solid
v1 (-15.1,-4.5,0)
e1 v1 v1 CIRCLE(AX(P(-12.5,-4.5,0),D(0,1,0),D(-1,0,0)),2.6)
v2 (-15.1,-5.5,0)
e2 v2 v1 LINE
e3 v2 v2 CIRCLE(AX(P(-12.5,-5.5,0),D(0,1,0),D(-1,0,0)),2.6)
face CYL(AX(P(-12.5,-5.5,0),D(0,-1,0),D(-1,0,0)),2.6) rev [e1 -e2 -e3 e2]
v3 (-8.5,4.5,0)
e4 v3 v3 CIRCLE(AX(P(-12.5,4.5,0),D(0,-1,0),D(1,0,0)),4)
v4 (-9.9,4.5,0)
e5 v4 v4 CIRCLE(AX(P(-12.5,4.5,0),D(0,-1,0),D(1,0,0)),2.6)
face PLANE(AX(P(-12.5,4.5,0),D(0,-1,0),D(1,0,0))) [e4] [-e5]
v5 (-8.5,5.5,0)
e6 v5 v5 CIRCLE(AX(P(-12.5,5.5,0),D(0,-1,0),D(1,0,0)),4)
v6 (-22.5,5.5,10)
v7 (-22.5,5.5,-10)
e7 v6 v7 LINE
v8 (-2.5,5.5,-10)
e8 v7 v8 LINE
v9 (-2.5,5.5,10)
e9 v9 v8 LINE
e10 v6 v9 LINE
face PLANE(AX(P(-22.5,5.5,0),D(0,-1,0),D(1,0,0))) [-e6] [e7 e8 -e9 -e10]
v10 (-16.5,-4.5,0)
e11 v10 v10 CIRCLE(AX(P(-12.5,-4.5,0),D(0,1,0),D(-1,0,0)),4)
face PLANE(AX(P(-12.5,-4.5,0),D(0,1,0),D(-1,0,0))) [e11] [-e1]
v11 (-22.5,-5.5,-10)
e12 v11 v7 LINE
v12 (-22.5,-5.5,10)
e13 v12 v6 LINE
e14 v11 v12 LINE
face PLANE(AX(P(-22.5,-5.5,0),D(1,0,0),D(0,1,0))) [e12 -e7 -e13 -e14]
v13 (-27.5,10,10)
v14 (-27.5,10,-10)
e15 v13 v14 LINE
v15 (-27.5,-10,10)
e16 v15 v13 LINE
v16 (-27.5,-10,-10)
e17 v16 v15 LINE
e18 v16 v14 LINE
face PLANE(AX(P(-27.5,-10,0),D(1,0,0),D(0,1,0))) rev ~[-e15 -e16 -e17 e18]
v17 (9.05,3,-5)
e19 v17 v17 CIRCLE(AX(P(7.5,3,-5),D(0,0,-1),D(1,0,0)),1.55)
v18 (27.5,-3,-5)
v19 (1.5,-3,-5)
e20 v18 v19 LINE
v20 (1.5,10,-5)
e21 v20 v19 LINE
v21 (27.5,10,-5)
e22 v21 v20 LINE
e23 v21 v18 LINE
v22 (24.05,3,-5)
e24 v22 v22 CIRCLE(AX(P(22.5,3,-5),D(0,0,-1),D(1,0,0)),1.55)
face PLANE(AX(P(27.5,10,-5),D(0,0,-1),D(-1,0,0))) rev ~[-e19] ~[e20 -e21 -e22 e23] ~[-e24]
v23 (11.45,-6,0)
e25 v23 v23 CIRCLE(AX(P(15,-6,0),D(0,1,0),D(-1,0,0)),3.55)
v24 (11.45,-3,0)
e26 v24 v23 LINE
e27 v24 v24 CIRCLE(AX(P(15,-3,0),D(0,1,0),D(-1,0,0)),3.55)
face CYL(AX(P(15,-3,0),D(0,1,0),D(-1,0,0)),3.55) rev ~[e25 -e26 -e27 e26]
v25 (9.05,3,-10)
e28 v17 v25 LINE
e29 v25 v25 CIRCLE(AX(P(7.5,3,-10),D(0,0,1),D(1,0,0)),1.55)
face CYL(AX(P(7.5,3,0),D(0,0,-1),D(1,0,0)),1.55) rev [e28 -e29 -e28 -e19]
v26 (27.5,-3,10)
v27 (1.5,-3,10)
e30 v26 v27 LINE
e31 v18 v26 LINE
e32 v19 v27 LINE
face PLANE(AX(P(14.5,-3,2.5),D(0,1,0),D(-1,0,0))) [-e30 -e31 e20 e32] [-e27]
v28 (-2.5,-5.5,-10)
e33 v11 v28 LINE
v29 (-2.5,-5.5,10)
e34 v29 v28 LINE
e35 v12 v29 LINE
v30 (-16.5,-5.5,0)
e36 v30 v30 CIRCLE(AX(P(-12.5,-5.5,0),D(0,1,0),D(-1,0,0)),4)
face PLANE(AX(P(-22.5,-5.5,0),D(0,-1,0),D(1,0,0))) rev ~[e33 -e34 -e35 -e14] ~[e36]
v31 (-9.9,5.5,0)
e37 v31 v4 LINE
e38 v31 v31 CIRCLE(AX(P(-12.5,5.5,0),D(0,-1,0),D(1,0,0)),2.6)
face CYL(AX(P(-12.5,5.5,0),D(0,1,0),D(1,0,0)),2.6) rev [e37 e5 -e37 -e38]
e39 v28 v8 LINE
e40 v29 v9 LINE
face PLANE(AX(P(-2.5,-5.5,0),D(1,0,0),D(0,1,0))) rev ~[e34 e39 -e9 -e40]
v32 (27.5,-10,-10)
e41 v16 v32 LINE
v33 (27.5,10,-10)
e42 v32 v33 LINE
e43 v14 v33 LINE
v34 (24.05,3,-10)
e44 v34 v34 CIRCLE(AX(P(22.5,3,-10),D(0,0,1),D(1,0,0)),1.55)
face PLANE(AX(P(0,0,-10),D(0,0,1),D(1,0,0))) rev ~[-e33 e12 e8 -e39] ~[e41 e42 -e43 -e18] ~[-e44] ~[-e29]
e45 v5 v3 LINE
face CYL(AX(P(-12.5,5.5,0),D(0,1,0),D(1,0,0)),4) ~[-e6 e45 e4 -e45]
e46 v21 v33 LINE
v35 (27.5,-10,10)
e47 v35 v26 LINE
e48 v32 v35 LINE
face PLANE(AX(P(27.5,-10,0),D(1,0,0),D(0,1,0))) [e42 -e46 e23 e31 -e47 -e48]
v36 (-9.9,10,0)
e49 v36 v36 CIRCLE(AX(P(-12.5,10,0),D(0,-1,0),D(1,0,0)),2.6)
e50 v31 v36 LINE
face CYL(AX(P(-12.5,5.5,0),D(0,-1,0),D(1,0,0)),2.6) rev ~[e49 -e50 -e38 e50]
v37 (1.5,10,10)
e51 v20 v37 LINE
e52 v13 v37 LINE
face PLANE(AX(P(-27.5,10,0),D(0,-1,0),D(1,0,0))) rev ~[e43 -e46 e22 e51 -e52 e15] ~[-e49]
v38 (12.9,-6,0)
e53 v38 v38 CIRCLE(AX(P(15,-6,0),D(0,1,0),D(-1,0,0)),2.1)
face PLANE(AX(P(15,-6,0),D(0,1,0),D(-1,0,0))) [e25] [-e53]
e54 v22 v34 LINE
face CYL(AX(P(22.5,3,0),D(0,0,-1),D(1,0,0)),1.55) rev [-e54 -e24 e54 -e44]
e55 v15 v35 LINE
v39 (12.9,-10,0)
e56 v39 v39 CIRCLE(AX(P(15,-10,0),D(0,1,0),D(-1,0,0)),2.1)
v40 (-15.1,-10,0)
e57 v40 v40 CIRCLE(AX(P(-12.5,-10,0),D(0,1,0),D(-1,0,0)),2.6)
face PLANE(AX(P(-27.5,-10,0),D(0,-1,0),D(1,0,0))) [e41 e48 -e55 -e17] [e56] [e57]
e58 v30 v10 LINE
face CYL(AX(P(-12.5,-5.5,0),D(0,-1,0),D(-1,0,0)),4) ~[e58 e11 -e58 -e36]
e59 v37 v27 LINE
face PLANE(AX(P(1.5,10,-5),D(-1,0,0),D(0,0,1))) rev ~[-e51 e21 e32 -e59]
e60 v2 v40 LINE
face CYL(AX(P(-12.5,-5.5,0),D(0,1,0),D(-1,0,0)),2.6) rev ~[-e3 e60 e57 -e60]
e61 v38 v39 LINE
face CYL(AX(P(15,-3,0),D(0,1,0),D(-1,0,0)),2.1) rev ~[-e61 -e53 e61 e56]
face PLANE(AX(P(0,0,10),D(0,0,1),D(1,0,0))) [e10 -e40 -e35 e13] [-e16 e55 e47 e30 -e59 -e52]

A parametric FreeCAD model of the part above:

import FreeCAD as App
import Part
import Sketcher


def add_polygon(sketch, points):
    """Adds a closed chain of lines whose ends are joined by coincident constraints."""
    first, n = sketch.GeometryCount, len(points)
    for a, b in zip(points, points[1:] + points[:1]):
        sketch.addGeometry(Part.LineSegment(App.Vector(*a, 0), App.Vector(*b, 0)), False)
    for i in range(n):
        sketch.addConstraint(Sketcher.Constraint("Coincident", first + i, 2, first + (i + 1) % n, 1))

doc = App.newDocument("Part")
body = doc.addObject("PartDesign::Body", "Body")

# Sketch on XY plane
sketch1 = body.newObject("Sketcher::SketchObject", "Sketch")
sketch1.AttachmentSupport = (doc.getObject("XY_Plane"), [""])
sketch1.MapMode = "FlatFace"
add_polygon(sketch1, [(-27.5, 10), (-27.5, -10), (27.5, -10), (27.5, 10)])  # lines 0-3
add_polygon(sketch1, [(-2.5, -5.5), (-22.5, -5.5), (-22.5, 5.5), (-2.5, 5.5)])  # lines 4-7
sketch1.addGeometry(Part.Circle(App.Vector(7.5, 3, 0), App.Vector(0, 0, 1), 1.6), False)  # 8
sketch1.addGeometry(Part.Circle(App.Vector(22.5, 3, 0), App.Vector(0, 0, 1), 1.6), False)  # 9
sketch1.addConstraint([
    Sketcher.Constraint("Vertical", 0),
    Sketcher.Constraint("Horizontal", 1),
    Sketcher.Constraint("Vertical", 2),
    Sketcher.Constraint("Horizontal", 3),
    Sketcher.Constraint("Horizontal", 4),
    Sketcher.Constraint("Vertical", 5),
    Sketcher.Constraint("Horizontal", 6),
    Sketcher.Constraint("Vertical", 7),
    Sketcher.Constraint("Equal", 8, 9),
    Sketcher.Constraint("Symmetric", 0, 2, 2, 2, -1, 1),
    Sketcher.Constraint("Horizontal", 8, 3, 9, 3),
    Sketcher.Constraint("Equal", 6, 0),
    Sketcher.Constraint("Diameter", 8, 3.1),
    Sketcher.Constraint("DistanceX", 1, 1, 1, 2, 55.0),
    Sketcher.Constraint("DistanceX", 4, 2, 4, 1, 20.0),
    Sketcher.Constraint("DistanceY", 5, 1, 5, 2, 11.0),
    Sketcher.Constraint("DistanceY", -1, 1, 8, 3, 3.0),
    Sketcher.Constraint("DistanceX", 8, 3, 9, 3, 15.0),
    Sketcher.Constraint("DistanceX", 0, 2, 8, 3, 35.0),
    Sketcher.Constraint("DistanceX", 0, 2, 4, 2, 5.0),
    Sketcher.Constraint("DistanceY", 4, 2, -1, 1, 5.5),
])
pad1 = body.newObject("PartDesign::Pad", "Pad")
pad1.Profile = sketch1
pad1.Length = 20
pad1.Midplane = True

# Sketch on XZ plane
sketch2 = body.newObject("Sketcher::SketchObject", "Sketch001")
sketch2.AttachmentSupport = (doc.getObject("XZ_Plane"), [""])
sketch2.MapMode = "FlatFace"
sketch2.AttachmentOffset = App.Placement(App.Vector(0, 0, -5.5), App.Rotation())
sketch2.addGeometry(Part.Circle(App.Vector(-12.5, 0, 0), App.Vector(0, 0, 1), 2.6), False)
sketch2.addConstraint([
    Sketcher.Constraint("PointOnObject", 0, 3, -1),
    Sketcher.Constraint("Diameter", 0, 5.2),
    Sketcher.Constraint("DistanceX", 0, 3, -1, 1, 12.5),
])
pocket1 = body.newObject("PartDesign::Pocket", "Pocket")
pocket1.Profile = sketch2
pocket1.Length = 5

# Sketch on XZ plane
sketch3 = body.newObject("Sketcher::SketchObject", "Sketch002")
sketch3.AttachmentSupport = (doc.getObject("XZ_Plane"), [""])
sketch3.MapMode = "FlatFace"
sketch3.AttachmentOffset = App.Placement(App.Vector(0, 0, 5.5), App.Rotation())
sketch3.addGeometry(Part.Circle(App.Vector(-12.5, 0, 0), App.Vector(0, 0, 1), 2.6), False)
sketch3.addConstraint([
    Sketcher.Constraint("PointOnObject", 0, 3, -1),
    Sketcher.Constraint("Diameter", 0, 5.2),
    Sketcher.Constraint("DistanceX", 0, 3, -1, 1, 12.5),
])
pocket2 = body.newObject("PartDesign::Pocket", "Pocket001")
pocket2.Profile = sketch3
pocket2.Length = 5
pocket2.Reversed = True

# Sketch on XZ plane
sketch4 = body.newObject("Sketcher::SketchObject", "Sketch003")
sketch4.AttachmentSupport = (doc.getObject("XZ_Plane"), [""])
sketch4.MapMode = "FlatFace"
sketch4.AttachmentOffset = App.Placement(App.Vector(0, 0, 5.5), App.Rotation())
sketch4.addGeometry([
    Part.Circle(App.Vector(-12.5, 0, 0), App.Vector(0, 0, 1), 4),
    Part.Circle(App.Vector(-12.5, 0, 0), App.Vector(0, 0, 1), 2.6),
], False)
sketch4.addConstraint([
    Sketcher.Constraint("Coincident", 1, 3, 0, 3),
    Sketcher.Constraint("PointOnObject", 0, 3, -1),
    Sketcher.Constraint("Diameter", 0, 8.0),
    Sketcher.Constraint("Diameter", 1, 5.2),
    Sketcher.Constraint("DistanceX", 0, 3, -1, 1, 12.5),
])
pad2 = body.newObject("PartDesign::Pad", "Pad001")
pad2.Profile = sketch4
pad2.Length = 1
pad2.Reversed = True

# Sketch on XZ plane
sketch5 = body.newObject("Sketcher::SketchObject", "Sketch004")
sketch5.AttachmentSupport = (doc.getObject("XZ_Plane"), [""])
sketch5.MapMode = "FlatFace"
sketch5.AttachmentOffset = App.Placement(App.Vector(0, 0, -5.5), App.Rotation())
sketch5.addGeometry([
    Part.Circle(App.Vector(-12.5, 0, 0), App.Vector(0, 0, 1), 4),
    Part.Circle(App.Vector(-12.5, 0, 0), App.Vector(0, 0, 1), 2.6),
], False)
sketch5.addConstraint([
    Sketcher.Constraint("Coincident", 1, 3, 0, 3),
    Sketcher.Constraint("PointOnObject", 0, 3, -1),
    Sketcher.Constraint("Diameter", 0, 8.0),
    Sketcher.Constraint("Diameter", 1, 5.2),
    Sketcher.Constraint("DistanceX", 0, 3, -1, 1, 12.5),
])
pad3 = body.newObject("PartDesign::Pad", "Pad002")
pad3.Profile = sketch5
pad3.Length = 1

# Sketch on XZ plane
sketch6 = body.newObject("Sketcher::SketchObject", "Sketch005")
sketch6.AttachmentSupport = (doc.getObject("XZ_Plane"), [""])
sketch6.MapMode = "FlatFace"
sketch6.AttachmentOffset = App.Placement(App.Vector(0, 0, -10), App.Rotation())
add_polygon(sketch6, [(28, 10), (28, -5), (2, -5), (2, 10)])  # lines 0-3
sketch6.addConstraint([
    Sketcher.Constraint("Vertical", 0),
    Sketcher.Constraint("Horizontal", 1),
    Sketcher.Constraint("Vertical", 2),
    Sketcher.Constraint("Horizontal", 3),
    Sketcher.Constraint("DistanceX", 1, 2, 1, 1, 26.0),
    Sketcher.Constraint("DistanceY", 0, 2, 0, 1, 15.0),
    Sketcher.Constraint("DistanceY", 0, 2, -1, 1, 5.0),
    Sketcher.Constraint("DistanceX", -1, 1, 0, 2, 27.5),
])
pocket3 = body.newObject("PartDesign::Pocket", "Pocket002")
pocket3.Profile = sketch6
pocket3.Length = 13
pocket3.Reversed = True

# Sketch on XZ plane
sketch7 = body.newObject("Sketcher::SketchObject", "Sketch006")
sketch7.AttachmentSupport = (doc.getObject("XZ_Plane"), [""])
sketch7.MapMode = "FlatFace"
sketch7.AttachmentOffset = App.Placement(App.Vector(0, 0, 3), App.Rotation())
sketch7.addGeometry(Part.Circle(App.Vector(15, 0, 0), App.Vector(0, 0, 1), 2.1), False)
sketch7.addConstraint([
    Sketcher.Constraint("PointOnObject", 0, 3, -1),
    Sketcher.Constraint("Diameter", 0, 4.2),
    Sketcher.Constraint("DistanceX", -1, 1, 0, 3, 15.0),
])
pocket4 = body.newObject("PartDesign::Pocket", "Pocket003")
pocket4.Profile = sketch7
pocket4.Length = 7
pocket4.Reversed = True

# Sketch on XZ plane
sketch8 = body.newObject("Sketcher::SketchObject", "Sketch007")
sketch8.AttachmentSupport = (doc.getObject("XZ_Plane"), [""])
sketch8.MapMode = "FlatFace"
sketch8.AttachmentOffset = App.Placement(App.Vector(0, 0, 3), App.Rotation())
sketch8.addGeometry([
    Part.Circle(App.Vector(15, 0, 0), App.Vector(0, 0, 1), 3.5),
    Part.Circle(App.Vector(15, 0, 0), App.Vector(0, 0, 1), 2.1),
], False)
sketch8.addConstraint([
    Sketcher.Constraint("Coincident", 1, 3, 0, 3),
    Sketcher.Constraint("PointOnObject", 0, 3, -1),
    Sketcher.Constraint("Diameter", 0, 7.1),
    Sketcher.Constraint("Diameter", 1, 4.2),
    Sketcher.Constraint("DistanceX", -1, 1, 0, 3, 15.0),
])
pocket5 = body.newObject("PartDesign::Pocket", "Pocket004")
pocket5.Profile = sketch8
pocket5.Length = 3
pocket5.Reversed = True

doc.recompute()
